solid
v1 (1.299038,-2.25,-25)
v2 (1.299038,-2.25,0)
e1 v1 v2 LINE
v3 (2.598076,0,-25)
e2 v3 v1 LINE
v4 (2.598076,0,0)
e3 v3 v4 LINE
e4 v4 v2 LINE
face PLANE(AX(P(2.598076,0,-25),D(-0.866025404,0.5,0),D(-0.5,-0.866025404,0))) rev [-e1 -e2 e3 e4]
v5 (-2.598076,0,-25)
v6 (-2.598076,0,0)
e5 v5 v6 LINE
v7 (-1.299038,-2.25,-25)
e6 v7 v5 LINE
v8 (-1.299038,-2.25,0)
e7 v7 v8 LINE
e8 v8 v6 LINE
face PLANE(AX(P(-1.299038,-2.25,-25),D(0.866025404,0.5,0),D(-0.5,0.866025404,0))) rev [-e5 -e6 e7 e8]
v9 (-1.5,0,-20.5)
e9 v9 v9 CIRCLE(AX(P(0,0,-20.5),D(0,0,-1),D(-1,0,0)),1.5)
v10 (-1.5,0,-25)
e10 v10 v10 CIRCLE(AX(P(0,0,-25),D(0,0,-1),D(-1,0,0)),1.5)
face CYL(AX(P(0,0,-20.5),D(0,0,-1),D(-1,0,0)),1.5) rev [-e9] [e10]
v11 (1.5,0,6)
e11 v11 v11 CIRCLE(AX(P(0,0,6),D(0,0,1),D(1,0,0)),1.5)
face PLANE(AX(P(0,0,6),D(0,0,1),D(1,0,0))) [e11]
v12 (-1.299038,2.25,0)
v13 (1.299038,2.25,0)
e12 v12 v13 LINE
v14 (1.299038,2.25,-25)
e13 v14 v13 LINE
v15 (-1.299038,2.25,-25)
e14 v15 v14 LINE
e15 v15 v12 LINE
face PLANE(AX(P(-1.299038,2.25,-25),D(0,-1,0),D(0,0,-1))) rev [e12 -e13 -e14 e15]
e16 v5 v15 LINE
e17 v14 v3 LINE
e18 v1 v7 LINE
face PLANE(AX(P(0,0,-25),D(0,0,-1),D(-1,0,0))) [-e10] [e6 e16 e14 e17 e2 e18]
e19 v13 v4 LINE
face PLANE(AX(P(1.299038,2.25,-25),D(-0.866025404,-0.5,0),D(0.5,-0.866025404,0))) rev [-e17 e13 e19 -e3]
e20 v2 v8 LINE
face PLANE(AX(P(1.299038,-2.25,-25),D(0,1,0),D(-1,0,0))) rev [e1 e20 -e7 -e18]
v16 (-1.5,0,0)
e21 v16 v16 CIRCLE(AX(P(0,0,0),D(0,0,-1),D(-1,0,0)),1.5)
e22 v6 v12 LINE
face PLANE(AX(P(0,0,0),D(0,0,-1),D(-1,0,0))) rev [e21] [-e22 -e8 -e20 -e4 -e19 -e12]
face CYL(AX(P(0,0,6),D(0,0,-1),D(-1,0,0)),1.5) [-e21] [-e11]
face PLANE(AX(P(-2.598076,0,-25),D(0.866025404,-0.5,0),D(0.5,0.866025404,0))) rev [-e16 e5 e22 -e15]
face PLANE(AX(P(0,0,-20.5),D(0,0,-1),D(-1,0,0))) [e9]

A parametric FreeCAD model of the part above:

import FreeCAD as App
import Part
import Sketcher

V = App.Vector
Q = App.Units.Quantity


def add_polygon(sketch, points):
    """Adds a closed chain of lines whose ends are joined by coincident constraints."""
    first, n = sketch.GeometryCount, len(points)
    for a, b in zip(points, points[1:] + points[:1]):
        sketch.addGeometry(Part.LineSegment(App.Vector(*a, 0), App.Vector(*b, 0)), False)
    for i in range(n):
        sketch.addConstraint(Sketcher.Constraint("Coincident", first + i, 2, first + (i + 1) % n, 1))

doc = App.newDocument("Part")
body = doc.addObject("PartDesign::Body", "Body")

# Sketch on XY plane
sketch1 = body.newObject("Sketcher::SketchObject", "Sketch")
sketch1.AttachmentSupport = (doc.getObject("XY_Plane"), [""])
sketch1.MapMode = "FlatFace"
sketch1.addGeometry(Part.Circle(V(0, 0, 0), V(0, 0, 1), 1.5), False)
sketch1.addConstraint(Sketcher.Constraint("Coincident", 0, 3, -1, 1))
sketch1.addConstraint(Sketcher.Constraint("Diameter", 0, Q("3 mm")))
pad1 = body.newObject("PartDesign::Pad", "Pad")
pad1.Profile = sketch1
pad1.Length = 6

# Sketch on XY plane
sketch2 = body.newObject("Sketcher::SketchObject", "Sketch001")
sketch2.AttachmentSupport = (doc.getObject("XY_Plane"), [""])
sketch2.MapMode = "FlatFace"
add_polygon(sketch2, [(1.299038, 2.25), (2.598076, 0), (1.299038, -2.25), (-1.299038, -2.25), (-2.598076, 0), (-1.299038, 2.25)])  # lines 0-5
sketch2.addConstraint(Sketcher.Constraint("Horizontal", 2))
sketch2.addConstraint(Sketcher.Constraint("Horizontal", 5))
sketch2.addConstraint(Sketcher.Constraint("Symmetric", 0, 2, 3, 2, -1, 1))
sketch2.addConstraint(Sketcher.Constraint("Symmetric", 1, 2, 4, 2, -1, 1))
sketch2.addConstraint(Sketcher.Constraint("PointOnObject", 0, 2, -1))
sketch2.addConstraint(Sketcher.Constraint("Parallel", 0, 3))
sketch2.addConstraint(Sketcher.Constraint("Vertical", 2, 2, 4, 2))
sketch2.addConstraint(Sketcher.Constraint("Angle", 0, Q("-60 deg")))
sketch2.addConstraint(Sketcher.Constraint("DistanceY", 2, 2, 4, 2, Q("4.5 mm")))
sketch2.addConstraint(Sketcher.Constraint("DistanceX", 2, 2, 2, 1, Q("2.598076 mm")))
pad2 = body.newObject("PartDesign::Pad", "Pad001")
pad2.Profile = sketch2
pad2.Length = 25
pad2.Reversed = True

# Sketch on XY plane
sketch3 = body.newObject("Sketcher::SketchObject", "Sketch002")
sketch3.AttachmentSupport = (doc.getObject("XY_Plane"), [""])
sketch3.MapMode = "FlatFace"
sketch3.AttachmentOffset = App.Placement(V(0, 0, -25), App.Rotation())
sketch3.addGeometry(Part.Circle(V(0, 0, 0), V(0, 0, 1), 1.5), False)
sketch3.addConstraint(Sketcher.Constraint("Coincident", 0, 3, -1, 1))
sketch3.addConstraint(Sketcher.Constraint("Diameter", 0, Q("3 mm")))
pocket1 = body.newObject("PartDesign::Pocket", "Pocket")
pocket1.Profile = sketch3
pocket1.Length = 4.5
pocket1.Reversed = True

doc.recompute()
